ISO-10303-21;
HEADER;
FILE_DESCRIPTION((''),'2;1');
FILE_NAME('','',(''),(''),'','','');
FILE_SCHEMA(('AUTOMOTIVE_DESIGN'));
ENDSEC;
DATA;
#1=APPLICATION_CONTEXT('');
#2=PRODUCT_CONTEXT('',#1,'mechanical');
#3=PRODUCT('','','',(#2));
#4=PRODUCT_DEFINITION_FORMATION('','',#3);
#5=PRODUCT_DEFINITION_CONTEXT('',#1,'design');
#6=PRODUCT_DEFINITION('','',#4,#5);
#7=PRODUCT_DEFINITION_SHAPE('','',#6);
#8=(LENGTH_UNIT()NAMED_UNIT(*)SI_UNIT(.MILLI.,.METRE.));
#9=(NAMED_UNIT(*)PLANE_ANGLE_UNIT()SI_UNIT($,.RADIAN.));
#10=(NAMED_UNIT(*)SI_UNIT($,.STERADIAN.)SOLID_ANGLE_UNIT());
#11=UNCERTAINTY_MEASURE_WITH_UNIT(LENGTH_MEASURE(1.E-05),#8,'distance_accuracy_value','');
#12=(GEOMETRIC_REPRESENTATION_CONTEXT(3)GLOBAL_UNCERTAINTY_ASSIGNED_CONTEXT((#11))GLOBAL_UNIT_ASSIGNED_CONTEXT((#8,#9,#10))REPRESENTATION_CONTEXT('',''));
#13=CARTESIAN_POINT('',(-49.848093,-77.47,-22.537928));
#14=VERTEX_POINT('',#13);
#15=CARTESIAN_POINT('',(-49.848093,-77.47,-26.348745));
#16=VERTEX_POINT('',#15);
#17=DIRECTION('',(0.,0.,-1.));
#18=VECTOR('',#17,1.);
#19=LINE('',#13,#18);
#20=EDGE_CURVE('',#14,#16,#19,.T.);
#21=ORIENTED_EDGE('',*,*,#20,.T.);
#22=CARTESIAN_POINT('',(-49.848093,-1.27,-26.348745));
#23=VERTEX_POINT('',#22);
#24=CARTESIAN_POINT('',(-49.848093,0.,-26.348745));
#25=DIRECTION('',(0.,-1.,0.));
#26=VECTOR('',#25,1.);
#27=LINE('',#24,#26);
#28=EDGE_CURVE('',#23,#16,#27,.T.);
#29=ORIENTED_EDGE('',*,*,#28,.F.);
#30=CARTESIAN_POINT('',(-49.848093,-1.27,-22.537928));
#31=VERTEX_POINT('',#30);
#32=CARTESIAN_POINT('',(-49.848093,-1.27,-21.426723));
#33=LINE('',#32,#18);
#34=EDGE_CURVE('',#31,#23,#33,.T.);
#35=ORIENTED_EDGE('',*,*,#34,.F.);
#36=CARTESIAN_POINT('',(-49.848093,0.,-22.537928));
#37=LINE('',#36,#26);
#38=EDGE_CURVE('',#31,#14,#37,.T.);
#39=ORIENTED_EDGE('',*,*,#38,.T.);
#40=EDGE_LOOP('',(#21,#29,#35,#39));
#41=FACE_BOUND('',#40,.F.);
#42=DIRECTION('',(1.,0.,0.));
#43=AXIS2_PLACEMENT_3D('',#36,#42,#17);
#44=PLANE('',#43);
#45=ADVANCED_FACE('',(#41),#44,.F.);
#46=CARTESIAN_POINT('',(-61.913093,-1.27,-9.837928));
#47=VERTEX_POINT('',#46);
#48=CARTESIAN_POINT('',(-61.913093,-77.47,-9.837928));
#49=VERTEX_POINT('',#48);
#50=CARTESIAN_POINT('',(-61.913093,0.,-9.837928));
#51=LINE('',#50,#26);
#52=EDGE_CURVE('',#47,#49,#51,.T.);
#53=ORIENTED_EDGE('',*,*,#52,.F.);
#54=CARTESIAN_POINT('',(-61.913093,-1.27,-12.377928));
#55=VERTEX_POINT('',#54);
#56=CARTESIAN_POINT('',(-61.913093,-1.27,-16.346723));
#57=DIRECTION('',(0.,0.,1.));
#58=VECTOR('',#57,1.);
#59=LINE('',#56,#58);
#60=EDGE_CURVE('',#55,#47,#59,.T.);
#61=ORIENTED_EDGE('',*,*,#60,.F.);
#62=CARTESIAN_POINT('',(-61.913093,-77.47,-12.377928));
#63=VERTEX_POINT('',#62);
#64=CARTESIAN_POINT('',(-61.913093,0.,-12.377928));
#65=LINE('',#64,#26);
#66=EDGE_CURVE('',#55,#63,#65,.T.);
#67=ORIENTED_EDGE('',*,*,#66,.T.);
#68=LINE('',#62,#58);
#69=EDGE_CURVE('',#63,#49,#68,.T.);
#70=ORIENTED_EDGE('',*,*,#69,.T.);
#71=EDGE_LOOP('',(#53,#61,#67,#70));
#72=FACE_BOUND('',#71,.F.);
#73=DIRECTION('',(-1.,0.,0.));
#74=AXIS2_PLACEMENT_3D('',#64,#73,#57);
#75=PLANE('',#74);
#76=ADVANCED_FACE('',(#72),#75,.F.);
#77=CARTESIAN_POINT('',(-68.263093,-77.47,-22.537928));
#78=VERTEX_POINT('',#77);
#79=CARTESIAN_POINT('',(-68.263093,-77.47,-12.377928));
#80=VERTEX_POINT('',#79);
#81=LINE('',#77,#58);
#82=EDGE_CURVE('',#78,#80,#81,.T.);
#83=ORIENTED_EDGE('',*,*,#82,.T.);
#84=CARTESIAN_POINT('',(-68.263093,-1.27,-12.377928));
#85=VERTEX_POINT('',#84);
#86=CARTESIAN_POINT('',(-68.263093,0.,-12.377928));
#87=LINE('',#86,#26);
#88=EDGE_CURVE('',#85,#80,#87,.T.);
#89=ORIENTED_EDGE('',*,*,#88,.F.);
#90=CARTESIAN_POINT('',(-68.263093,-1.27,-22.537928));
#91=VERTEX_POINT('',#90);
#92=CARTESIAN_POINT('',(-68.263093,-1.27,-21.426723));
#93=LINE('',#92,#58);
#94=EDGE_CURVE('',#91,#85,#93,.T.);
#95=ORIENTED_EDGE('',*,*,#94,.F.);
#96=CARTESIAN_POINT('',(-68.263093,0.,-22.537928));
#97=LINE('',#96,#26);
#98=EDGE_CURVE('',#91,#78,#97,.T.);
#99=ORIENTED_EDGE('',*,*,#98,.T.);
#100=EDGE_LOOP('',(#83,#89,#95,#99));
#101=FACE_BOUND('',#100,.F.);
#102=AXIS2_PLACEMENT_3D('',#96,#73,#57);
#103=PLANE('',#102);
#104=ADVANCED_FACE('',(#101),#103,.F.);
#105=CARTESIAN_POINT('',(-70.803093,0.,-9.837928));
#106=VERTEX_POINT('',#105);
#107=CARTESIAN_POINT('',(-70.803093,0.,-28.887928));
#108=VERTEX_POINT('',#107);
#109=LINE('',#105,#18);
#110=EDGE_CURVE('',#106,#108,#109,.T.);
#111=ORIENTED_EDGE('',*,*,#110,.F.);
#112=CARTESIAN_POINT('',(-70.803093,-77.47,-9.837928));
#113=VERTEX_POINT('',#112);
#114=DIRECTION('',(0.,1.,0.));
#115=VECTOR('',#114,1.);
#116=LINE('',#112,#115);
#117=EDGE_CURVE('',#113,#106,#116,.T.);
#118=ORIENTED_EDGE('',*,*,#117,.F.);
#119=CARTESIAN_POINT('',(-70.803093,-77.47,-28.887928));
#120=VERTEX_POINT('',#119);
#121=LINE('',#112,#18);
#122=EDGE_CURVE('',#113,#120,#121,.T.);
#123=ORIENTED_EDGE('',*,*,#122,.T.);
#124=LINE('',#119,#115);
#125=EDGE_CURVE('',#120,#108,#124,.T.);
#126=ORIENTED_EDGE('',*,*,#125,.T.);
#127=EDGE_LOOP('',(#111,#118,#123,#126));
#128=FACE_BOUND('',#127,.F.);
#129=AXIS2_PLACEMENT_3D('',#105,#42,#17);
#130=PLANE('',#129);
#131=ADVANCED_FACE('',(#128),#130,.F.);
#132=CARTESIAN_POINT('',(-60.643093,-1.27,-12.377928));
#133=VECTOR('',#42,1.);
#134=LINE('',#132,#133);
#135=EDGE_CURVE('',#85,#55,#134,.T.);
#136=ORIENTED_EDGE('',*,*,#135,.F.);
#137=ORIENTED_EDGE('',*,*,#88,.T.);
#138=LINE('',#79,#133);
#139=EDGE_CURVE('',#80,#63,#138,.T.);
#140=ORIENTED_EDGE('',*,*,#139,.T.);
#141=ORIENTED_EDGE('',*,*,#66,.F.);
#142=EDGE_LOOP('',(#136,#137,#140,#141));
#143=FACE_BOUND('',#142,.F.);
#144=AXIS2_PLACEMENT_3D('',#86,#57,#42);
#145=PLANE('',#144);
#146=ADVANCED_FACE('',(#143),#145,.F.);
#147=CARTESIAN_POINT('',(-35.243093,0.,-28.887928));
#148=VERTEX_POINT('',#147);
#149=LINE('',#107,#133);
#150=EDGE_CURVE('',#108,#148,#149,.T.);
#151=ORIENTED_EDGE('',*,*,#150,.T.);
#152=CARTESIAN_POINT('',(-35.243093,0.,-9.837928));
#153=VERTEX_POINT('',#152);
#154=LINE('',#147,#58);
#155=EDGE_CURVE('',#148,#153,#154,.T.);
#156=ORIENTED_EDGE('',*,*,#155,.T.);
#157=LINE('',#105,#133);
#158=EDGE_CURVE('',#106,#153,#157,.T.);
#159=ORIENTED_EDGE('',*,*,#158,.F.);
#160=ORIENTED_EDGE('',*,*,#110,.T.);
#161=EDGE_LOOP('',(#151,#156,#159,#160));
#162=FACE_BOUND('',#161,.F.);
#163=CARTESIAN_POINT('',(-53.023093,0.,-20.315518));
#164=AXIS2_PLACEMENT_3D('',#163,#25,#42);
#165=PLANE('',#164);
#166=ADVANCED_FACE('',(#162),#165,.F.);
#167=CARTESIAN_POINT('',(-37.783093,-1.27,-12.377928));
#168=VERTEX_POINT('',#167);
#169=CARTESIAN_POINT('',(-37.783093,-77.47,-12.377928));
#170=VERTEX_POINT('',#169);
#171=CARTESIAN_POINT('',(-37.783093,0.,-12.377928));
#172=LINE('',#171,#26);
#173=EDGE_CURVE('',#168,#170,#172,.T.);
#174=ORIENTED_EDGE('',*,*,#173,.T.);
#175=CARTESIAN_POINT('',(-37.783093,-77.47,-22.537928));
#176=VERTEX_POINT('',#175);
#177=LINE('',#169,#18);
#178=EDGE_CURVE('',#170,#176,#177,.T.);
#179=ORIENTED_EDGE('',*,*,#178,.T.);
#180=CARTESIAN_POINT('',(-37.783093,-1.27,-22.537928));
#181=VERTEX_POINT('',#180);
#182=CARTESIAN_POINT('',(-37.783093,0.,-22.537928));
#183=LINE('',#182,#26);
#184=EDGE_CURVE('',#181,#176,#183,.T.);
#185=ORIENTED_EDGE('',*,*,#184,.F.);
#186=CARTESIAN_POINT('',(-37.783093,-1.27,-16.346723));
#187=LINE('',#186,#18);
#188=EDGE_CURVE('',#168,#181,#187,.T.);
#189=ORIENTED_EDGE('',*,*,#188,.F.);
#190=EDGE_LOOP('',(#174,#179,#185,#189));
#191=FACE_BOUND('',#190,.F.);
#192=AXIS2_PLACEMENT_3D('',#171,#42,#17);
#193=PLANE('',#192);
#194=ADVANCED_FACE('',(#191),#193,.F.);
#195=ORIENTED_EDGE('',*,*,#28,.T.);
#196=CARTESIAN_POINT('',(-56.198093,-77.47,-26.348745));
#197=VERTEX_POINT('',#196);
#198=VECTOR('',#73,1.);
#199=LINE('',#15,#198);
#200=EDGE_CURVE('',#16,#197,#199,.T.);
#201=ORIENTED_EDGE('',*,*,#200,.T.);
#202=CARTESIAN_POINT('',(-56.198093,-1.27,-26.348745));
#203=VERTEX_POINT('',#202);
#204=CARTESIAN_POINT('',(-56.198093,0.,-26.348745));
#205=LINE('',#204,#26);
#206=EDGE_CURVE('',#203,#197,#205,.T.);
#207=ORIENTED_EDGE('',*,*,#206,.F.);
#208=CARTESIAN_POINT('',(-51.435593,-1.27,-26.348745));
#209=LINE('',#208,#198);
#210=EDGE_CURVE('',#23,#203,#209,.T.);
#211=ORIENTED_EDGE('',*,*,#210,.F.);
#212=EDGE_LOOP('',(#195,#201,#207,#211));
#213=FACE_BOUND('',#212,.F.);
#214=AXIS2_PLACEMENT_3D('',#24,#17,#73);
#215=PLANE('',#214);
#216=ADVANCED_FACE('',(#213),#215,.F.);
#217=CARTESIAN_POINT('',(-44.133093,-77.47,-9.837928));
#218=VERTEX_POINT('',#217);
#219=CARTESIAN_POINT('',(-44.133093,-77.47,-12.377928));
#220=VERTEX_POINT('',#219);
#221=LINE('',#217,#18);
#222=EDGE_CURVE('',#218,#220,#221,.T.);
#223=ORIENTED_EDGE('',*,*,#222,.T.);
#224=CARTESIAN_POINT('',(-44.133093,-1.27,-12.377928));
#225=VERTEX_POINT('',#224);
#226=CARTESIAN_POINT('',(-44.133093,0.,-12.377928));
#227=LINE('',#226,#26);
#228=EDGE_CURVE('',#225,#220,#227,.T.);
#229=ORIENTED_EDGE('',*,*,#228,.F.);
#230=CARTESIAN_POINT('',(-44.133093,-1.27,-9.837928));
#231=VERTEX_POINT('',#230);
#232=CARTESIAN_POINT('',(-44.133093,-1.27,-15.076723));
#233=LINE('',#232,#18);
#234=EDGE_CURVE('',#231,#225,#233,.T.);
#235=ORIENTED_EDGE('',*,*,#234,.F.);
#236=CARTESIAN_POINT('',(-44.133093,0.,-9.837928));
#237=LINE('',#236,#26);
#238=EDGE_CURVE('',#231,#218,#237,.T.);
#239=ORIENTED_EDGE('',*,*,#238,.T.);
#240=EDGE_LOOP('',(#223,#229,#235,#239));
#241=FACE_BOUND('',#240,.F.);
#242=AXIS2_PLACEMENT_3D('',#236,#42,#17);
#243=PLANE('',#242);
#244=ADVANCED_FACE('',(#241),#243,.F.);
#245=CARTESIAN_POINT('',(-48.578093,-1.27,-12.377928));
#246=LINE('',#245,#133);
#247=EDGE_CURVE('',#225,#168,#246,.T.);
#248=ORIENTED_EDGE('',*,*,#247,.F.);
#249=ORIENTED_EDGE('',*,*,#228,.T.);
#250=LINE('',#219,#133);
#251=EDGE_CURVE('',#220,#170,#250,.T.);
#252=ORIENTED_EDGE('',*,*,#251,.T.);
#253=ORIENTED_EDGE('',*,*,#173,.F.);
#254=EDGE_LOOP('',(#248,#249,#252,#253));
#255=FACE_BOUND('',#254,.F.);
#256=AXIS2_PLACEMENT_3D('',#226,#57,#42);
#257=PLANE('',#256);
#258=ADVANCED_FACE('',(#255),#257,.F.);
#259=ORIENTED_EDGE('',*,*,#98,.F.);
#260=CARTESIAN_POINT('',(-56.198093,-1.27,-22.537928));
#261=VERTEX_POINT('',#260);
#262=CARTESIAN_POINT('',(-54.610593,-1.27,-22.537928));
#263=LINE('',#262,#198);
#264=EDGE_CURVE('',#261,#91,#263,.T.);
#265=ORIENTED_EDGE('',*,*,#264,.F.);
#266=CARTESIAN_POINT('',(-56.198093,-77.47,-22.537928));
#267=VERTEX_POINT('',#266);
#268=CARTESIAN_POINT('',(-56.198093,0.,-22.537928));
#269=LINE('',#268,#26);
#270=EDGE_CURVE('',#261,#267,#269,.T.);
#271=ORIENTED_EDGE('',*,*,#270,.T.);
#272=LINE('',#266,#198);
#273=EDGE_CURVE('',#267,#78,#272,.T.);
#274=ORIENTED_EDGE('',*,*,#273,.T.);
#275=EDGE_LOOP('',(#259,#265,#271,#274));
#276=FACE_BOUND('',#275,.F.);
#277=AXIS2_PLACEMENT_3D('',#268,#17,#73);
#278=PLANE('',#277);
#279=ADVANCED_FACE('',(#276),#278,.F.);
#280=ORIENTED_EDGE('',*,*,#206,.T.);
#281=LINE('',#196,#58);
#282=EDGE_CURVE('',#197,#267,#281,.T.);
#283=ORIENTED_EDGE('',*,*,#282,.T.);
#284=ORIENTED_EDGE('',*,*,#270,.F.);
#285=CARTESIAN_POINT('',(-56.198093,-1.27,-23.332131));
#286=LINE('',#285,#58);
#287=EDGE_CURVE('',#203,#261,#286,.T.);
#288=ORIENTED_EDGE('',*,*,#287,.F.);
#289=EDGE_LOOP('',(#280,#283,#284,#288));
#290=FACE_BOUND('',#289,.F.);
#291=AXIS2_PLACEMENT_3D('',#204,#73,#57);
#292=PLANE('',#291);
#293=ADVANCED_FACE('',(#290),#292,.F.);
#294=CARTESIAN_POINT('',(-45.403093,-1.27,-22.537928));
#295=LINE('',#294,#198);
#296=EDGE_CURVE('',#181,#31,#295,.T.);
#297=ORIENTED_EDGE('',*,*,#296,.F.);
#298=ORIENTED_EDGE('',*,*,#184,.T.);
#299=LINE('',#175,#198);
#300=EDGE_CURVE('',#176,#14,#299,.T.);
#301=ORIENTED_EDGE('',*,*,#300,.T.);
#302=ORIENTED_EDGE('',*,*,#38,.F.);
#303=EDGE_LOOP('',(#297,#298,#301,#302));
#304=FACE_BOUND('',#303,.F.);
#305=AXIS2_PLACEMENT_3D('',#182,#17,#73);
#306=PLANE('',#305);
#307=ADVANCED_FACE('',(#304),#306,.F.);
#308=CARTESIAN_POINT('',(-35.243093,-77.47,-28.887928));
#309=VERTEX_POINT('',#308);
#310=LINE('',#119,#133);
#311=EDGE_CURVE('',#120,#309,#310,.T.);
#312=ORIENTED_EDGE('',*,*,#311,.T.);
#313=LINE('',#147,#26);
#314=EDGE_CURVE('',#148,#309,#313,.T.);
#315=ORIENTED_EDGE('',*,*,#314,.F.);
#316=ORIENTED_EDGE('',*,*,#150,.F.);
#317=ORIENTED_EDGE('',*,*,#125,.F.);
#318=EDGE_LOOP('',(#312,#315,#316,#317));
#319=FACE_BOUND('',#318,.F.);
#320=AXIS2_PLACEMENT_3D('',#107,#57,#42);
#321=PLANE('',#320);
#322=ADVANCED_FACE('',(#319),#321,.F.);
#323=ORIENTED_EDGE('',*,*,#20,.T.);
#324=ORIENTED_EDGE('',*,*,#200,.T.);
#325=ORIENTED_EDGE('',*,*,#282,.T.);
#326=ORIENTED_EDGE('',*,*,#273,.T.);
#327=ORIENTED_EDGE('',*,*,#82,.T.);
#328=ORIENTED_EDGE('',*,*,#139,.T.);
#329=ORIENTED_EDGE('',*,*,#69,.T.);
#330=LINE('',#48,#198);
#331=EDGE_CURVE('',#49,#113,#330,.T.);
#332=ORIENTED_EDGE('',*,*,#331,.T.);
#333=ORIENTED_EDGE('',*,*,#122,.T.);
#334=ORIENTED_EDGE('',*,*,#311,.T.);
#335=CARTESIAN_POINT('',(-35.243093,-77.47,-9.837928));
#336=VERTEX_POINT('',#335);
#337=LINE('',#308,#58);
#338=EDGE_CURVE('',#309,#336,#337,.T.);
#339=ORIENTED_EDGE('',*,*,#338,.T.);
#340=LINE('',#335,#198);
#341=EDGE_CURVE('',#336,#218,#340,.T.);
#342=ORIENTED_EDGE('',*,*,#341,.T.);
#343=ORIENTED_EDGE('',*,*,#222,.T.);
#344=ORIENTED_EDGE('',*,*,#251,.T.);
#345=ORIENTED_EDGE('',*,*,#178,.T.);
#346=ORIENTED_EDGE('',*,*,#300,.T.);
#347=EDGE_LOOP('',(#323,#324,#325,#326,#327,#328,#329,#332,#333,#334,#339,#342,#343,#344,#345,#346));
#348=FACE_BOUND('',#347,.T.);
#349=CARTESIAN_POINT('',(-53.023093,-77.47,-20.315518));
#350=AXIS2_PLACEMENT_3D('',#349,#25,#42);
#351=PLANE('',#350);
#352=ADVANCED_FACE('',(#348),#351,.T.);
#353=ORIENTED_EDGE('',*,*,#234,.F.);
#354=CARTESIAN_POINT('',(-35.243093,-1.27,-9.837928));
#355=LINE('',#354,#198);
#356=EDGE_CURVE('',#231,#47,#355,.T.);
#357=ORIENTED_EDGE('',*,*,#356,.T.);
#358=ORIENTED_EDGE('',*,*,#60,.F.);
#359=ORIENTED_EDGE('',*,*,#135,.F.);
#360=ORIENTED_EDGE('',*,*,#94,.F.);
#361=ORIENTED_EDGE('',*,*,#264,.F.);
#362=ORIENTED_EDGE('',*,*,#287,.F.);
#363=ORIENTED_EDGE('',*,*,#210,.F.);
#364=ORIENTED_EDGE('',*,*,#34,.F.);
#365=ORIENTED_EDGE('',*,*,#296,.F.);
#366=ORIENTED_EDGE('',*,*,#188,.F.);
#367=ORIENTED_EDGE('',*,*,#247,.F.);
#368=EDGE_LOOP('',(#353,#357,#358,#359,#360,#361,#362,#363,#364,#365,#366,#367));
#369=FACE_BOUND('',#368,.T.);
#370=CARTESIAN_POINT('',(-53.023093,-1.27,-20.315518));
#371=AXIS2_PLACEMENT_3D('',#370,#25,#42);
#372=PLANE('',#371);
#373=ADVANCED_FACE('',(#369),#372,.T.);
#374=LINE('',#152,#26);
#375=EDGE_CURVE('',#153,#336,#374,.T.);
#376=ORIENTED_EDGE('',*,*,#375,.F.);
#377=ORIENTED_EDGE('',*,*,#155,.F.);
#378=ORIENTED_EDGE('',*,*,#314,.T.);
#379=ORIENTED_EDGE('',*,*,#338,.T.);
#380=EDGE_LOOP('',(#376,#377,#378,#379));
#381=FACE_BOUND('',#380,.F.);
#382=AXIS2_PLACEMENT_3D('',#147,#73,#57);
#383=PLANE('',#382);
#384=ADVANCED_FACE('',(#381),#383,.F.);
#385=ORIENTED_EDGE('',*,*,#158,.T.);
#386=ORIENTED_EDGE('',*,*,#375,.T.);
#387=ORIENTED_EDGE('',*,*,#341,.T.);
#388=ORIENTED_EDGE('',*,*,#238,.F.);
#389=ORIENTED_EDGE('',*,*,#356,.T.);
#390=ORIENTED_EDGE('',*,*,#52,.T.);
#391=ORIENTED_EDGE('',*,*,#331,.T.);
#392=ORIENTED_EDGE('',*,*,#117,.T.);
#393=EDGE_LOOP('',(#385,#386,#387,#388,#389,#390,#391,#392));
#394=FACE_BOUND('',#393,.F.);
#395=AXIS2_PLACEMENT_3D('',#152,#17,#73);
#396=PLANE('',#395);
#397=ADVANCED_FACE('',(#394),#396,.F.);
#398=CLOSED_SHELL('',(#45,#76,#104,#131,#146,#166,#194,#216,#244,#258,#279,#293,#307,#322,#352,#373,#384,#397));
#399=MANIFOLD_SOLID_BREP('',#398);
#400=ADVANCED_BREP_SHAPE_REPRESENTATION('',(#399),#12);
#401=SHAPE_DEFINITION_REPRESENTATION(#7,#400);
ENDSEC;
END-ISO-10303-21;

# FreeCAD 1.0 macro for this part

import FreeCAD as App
import Part
import Sketcher

V = App.Vector
Q = App.Units.Quantity


def add_polygon(sketch, points):
    """Adds a closed chain of lines whose ends are joined by coincident constraints."""
    first, n = sketch.GeometryCount, len(points)
    for a, b in zip(points, points[1:] + points[:1]):
        sketch.addGeometry(Part.LineSegment(App.Vector(*a, 0), App.Vector(*b, 0)), False)
    for i in range(n):
        sketch.addConstraint(Sketcher.Constraint("Coincident", first + i, 2, first + (i + 1) % n, 1))

doc = App.newDocument("Part")
body = doc.addObject("PartDesign::Body", "Body")

# Sketch on XZ plane
sketch1 = body.newObject("Sketcher::SketchObject", "Sketch")
sketch1.AttachmentSupport = (doc.getObject("XZ_Plane"), [""])
sketch1.MapMode = "FlatFace"
add_polygon(sketch1, [(-70.8, -28.9), (-35.2, -28.9), (-35.2, -9.8), (-44.1, -9.8), (-44.1, -12.4), (-37.8, -12.4), (-37.8, -22.5), (-49.8, -22.5), (-49.8, -26.3), (-56.2, -26.3), (-56.2, -22.5), (-68.3, -22.5), (-68.3, -12.4), (-61.9, -12.4), (-61.9, -9.8), (-70.8, -9.8)])  # lines 0-15
sketch1.addConstraint([
    Sketcher.Constraint("Horizontal", 0),
    Sketcher.Constraint("Vertical", 1),
    Sketcher.Constraint("Horizontal", 2),
    Sketcher.Constraint("Vertical", 3),
    Sketcher.Constraint("Horizontal", 4),
    Sketcher.Constraint("Vertical", 5),
    Sketcher.Constraint("Horizontal", 6),
    Sketcher.Constraint("Vertical", 7),
    Sketcher.Constraint("Horizontal", 8),
    Sketcher.Constraint("Vertical", 9),
    Sketcher.Constraint("Horizontal", 10),
    Sketcher.Constraint("Vertical", 11),
    Sketcher.Constraint("Horizontal", 12),
    Sketcher.Constraint("Vertical", 13),
    Sketcher.Constraint("Horizontal", 14),
    Sketcher.Constraint("Vertical", 15),
    Sketcher.Constraint("Horizontal", 6, 2, 9, 2),
    Sketcher.Constraint("Horizontal", 4, 2, 11, 2),
    Sketcher.Constraint("Horizontal", 2, 2, 13, 2),
    Sketcher.Constraint("Equal", 4, 8),
    Sketcher.Constraint("Equal", 6, 10),
    Sketcher.Constraint("Equal", 8, 12),
    Sketcher.Constraint("Equal", 2, 14),
    Sketcher.Constraint("DistanceX", 0, 1, 0, 2, Q("1.4 in")),
    Sketcher.Constraint("DistanceY", 3, 2, 3, 1, Q("0.1 in")),
    Sketcher.Constraint("DistanceY", 5, 2, 5, 1, Q("0.4 in")),
    Sketcher.Constraint("DistanceX", 2, 2, 2, 1, Q("0.35 in")),
    Sketcher.Constraint("DistanceX", 4, 1, 4, 2, Q("0.25 in")),
    Sketcher.Constraint("DistanceY", 1, 1, 1, 2, Q("0.75 in")),
    Sketcher.Constraint("DistanceY", 7, 2, 7, 1, 3.810817),
    Sketcher.Constraint("DistanceY", 3, 2, -1, 1, 12.377928),
    Sketcher.Constraint("DistanceX", 0, 2, -1, 1, 35.243093),
])
pad1 = body.newObject("PartDesign::Pad", "Pad")
pad1.Profile = sketch1
pad1.Length = Q("3.05 in")

# Sketch on XZ plane
sketch2 = body.newObject("Sketcher::SketchObject", "Sketch001")
sketch2.AttachmentSupport = (doc.getObject("XZ_Plane"), [""])
sketch2.MapMode = "FlatFace"
add_polygon(sketch2, [(-71, -29), (-35, -29), (-35, -10), (-71, -10)])  # lines 0-3
sketch2.addConstraint([
    Sketcher.Constraint("Horizontal", 0),
    Sketcher.Constraint("Vertical", 1),
    Sketcher.Constraint("Horizontal", 2),
    Sketcher.Constraint("Vertical", 3),
    Sketcher.Constraint("DistanceX", 0, 1, 0, 2, Q("1.4 in")),
    Sketcher.Constraint("DistanceY", 1, 1, 1, 2, Q("0.75 in")),
    Sketcher.Constraint("DistanceX", 0, 2, -1, 1, 35.243093),
    Sketcher.Constraint("DistanceY", 0, 2, -1, 1, 28.887928),
])
pad2 = body.newObject("PartDesign::Pad", "Pad001")
pad2.Profile = sketch2
pad2.Length = Q("0.05 in")

doc.recompute()
